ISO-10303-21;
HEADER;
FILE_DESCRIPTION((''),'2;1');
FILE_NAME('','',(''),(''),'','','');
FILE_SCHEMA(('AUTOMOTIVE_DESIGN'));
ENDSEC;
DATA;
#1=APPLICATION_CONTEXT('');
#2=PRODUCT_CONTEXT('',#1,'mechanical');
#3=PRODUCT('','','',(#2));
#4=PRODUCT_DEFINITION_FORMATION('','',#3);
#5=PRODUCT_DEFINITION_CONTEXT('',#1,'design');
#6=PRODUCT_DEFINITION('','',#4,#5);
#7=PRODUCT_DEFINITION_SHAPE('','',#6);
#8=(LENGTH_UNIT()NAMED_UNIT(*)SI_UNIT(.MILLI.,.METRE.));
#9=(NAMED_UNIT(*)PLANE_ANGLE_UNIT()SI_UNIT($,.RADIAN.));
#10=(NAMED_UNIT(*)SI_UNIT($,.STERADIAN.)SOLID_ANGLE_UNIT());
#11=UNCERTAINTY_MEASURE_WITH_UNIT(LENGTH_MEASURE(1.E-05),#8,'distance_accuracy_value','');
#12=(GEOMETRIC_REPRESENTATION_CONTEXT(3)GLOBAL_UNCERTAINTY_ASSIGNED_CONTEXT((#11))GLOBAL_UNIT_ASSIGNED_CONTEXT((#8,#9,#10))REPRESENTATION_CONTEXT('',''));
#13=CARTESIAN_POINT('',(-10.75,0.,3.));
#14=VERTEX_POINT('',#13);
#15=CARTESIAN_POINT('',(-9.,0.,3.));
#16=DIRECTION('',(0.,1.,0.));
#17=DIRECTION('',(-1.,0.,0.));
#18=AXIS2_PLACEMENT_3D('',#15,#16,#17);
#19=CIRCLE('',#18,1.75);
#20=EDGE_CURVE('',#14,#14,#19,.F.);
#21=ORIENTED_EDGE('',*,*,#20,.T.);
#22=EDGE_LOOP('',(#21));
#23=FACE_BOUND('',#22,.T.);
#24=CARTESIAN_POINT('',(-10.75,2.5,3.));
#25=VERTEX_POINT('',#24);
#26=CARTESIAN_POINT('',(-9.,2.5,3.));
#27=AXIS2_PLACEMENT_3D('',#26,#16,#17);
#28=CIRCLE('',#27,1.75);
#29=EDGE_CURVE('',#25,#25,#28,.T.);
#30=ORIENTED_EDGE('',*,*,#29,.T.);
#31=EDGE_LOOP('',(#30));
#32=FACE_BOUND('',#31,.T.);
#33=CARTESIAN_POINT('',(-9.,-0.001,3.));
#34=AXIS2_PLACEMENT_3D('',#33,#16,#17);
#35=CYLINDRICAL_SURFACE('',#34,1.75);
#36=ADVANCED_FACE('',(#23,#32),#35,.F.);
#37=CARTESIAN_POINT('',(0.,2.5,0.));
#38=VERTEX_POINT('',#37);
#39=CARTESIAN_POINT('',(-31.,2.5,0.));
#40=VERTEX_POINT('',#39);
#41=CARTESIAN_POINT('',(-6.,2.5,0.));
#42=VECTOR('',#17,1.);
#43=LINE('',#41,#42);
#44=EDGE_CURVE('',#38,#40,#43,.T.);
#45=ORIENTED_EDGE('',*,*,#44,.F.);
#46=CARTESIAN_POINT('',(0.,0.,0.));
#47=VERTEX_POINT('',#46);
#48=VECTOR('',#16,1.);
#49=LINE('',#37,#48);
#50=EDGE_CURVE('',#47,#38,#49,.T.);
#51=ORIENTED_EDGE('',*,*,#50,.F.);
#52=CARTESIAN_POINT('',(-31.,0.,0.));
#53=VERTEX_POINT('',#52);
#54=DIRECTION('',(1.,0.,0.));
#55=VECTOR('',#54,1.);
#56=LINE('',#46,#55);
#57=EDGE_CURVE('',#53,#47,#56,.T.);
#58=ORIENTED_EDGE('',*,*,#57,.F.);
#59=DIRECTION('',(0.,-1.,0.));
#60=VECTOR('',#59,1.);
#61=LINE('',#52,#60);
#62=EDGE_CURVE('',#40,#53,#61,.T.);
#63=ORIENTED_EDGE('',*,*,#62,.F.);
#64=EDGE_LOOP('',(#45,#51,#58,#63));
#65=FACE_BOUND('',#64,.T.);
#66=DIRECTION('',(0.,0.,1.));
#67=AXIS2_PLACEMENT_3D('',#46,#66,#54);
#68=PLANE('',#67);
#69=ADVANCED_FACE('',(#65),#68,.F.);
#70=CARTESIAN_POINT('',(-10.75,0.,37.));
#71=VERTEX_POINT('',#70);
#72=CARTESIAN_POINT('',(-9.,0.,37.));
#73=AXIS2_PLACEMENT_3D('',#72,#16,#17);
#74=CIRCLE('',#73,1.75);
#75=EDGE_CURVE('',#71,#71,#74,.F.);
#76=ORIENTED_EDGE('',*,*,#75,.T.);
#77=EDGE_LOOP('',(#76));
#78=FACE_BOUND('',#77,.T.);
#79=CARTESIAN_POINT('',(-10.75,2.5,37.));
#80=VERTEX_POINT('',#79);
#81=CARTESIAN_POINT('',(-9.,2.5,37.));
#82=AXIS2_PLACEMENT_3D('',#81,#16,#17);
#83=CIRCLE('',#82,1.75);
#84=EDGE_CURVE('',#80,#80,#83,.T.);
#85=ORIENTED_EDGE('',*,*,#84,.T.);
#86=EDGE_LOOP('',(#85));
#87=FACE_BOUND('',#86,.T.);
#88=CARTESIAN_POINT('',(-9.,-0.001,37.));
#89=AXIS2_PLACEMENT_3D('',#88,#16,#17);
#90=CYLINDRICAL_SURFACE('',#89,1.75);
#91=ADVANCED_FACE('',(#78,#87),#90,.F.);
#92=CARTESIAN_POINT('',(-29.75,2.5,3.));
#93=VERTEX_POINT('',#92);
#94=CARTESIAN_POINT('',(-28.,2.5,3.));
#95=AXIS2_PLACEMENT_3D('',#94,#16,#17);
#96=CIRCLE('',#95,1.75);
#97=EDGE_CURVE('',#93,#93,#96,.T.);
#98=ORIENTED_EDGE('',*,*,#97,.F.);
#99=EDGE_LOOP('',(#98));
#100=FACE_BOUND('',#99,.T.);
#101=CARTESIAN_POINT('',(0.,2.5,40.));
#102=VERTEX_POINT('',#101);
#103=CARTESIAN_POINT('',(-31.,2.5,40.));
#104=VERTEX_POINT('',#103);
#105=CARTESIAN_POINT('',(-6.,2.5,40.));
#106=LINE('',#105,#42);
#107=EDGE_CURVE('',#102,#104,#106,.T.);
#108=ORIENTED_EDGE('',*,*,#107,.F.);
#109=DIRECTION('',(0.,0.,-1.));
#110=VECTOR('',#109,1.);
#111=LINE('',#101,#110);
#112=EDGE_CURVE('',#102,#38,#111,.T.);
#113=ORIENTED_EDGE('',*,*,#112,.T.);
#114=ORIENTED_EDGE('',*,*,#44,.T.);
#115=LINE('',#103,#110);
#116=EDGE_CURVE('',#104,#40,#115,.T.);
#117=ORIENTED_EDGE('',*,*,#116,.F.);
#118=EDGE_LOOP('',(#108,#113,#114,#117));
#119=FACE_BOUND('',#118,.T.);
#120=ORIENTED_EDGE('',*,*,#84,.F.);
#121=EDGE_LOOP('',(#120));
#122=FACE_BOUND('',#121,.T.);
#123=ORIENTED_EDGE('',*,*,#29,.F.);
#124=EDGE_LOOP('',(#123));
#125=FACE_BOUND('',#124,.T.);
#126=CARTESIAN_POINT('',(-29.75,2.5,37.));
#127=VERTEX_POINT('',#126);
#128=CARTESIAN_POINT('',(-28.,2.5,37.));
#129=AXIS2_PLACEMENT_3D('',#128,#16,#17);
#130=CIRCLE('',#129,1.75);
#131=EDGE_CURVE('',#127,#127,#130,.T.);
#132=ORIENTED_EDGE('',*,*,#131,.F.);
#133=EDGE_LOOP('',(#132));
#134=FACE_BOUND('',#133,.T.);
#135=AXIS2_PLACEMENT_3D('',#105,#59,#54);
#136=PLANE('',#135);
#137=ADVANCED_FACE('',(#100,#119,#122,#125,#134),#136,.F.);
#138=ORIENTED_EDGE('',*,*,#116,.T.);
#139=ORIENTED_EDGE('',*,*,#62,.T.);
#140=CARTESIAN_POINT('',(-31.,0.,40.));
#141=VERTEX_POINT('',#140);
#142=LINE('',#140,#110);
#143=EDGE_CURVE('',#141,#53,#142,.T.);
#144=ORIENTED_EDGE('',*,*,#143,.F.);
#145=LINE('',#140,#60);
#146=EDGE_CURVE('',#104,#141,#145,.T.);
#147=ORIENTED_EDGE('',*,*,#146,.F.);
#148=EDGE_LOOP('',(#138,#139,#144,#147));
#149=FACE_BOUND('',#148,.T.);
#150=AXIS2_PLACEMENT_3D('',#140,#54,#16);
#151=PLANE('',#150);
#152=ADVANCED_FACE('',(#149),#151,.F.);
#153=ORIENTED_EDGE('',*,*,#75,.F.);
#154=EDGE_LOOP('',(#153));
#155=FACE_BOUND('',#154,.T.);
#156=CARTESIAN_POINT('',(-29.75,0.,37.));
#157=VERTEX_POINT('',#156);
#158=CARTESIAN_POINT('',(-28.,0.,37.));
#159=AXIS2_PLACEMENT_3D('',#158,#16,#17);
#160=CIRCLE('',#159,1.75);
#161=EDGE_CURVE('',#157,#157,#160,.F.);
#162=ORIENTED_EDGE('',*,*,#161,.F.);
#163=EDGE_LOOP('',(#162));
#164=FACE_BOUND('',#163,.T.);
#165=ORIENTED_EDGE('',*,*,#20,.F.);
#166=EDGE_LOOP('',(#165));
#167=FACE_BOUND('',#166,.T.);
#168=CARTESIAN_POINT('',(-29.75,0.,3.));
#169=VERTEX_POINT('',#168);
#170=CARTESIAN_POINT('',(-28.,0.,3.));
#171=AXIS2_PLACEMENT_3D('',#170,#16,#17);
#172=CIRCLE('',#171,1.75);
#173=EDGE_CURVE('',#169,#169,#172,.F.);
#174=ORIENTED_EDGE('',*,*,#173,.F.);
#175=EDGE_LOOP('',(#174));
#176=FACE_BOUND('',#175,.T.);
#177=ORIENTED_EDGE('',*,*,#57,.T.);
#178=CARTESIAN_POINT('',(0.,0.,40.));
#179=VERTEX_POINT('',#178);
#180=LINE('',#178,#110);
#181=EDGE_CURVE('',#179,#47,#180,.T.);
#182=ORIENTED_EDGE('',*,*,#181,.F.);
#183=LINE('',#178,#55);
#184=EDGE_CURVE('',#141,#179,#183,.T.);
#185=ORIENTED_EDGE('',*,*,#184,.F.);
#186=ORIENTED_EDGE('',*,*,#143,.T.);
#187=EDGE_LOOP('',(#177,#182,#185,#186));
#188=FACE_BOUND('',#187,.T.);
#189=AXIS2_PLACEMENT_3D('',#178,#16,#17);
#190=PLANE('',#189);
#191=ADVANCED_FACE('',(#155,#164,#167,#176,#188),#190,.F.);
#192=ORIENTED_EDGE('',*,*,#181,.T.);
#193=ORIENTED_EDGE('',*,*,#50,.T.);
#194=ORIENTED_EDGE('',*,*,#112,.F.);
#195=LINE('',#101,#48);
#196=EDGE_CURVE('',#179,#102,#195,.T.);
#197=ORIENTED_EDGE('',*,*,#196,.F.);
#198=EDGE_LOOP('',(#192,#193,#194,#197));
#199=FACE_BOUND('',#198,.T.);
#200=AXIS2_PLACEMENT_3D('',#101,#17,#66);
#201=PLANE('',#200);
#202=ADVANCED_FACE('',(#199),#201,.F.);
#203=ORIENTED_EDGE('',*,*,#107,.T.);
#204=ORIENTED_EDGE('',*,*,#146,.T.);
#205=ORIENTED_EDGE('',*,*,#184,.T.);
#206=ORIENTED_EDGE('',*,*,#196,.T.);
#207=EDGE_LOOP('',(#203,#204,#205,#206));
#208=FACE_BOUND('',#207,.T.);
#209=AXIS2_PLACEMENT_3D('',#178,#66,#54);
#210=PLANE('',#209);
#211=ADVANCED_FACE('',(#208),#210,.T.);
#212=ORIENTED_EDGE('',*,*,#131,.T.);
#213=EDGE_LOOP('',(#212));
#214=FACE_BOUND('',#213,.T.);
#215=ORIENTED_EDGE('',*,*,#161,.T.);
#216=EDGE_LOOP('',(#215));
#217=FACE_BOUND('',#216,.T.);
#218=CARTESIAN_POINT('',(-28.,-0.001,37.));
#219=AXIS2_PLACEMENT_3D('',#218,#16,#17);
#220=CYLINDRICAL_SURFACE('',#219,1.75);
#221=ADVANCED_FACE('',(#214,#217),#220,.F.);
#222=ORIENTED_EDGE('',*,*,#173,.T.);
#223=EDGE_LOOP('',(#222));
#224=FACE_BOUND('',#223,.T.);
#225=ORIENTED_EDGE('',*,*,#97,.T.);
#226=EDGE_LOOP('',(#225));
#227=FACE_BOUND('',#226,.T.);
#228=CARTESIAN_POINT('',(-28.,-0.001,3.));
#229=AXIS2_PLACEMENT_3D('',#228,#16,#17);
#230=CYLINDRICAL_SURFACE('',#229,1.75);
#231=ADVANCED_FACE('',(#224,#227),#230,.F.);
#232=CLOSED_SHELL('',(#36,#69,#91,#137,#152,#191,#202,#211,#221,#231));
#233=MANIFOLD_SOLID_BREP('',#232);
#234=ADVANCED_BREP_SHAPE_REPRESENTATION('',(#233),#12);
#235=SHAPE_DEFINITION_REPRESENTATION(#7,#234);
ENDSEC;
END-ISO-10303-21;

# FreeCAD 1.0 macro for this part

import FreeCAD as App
import Part
import Sketcher

V = App.Vector

doc = App.newDocument("Part")
body = doc.addObject("PartDesign::Body", "Body")

sketch1 = doc.addObject("Sketcher::SketchObject", "Sketch")
body.addObject(sketch1)
sketch1.AttachmentSupport = (doc.XY_Plane, [""])
sketch1.MapMode = "FlatFace"
sketch1.addGeometry([
    Part.LineSegment(V(-31, 0, 0), V(0, 0, 0)),
    Part.LineSegment(V(0, 0, 0), V(0, 2.5, 0)),
    Part.LineSegment(V(0, 2.5, 0), V(-31, 2.5, 0)),
    Part.LineSegment(V(-31, 2.5, 0), V(-31, 0, 0)),
], False)
sketch1.addConstraint([
    Sketcher.Constraint("Coincident", 0, 2, 1, 1),
    Sketcher.Constraint("Coincident", 1, 2, 2, 1),
    Sketcher.Constraint("Coincident", 2, 2, 3, 1),
    Sketcher.Constraint("Coincident", 3, 2, 0, 1),
    Sketcher.Constraint("Horizontal", 0),
    Sketcher.Constraint("Vertical", 1),
    Sketcher.Constraint("Horizontal", 2),
    Sketcher.Constraint("Vertical", 3),
    Sketcher.Constraint("Coincident", 0, 2, -1, 1),
    Sketcher.Constraint("DistanceX", 0, 1, 0, 2, 31.0),
    Sketcher.Constraint("DistanceY", 1, 1, 1, 2, 2.5),
])
pad1 = doc.addObject("PartDesign::Pad", "Pad")
body.addObject(pad1)
pad1.Profile = sketch1
pad1.Length = 40

sketch2 = doc.addObject("Sketcher::SketchObject", "Sketch001")
body.addObject(sketch2)
sketch2.AttachmentSupport = (doc.XZ_Plane, [""])
sketch2.MapMode = "FlatFace"
sketch2.AttachmentOffset = App.Placement(V(0, 0, -2.5), App.Rotation())
sketch2.addGeometry(Part.Circle(V(-9, 3, 0), V(0, 0, 1), 1.8), False)
sketch2.addConstraint([
    Sketcher.Constraint("Diameter", 0, 3.5),
    Sketcher.Constraint("DistanceX", 0, 3, -1, 1, 9.0),
    Sketcher.Constraint("DistanceY", -1, 1, 0, 3, 3.0),
])
pocket1 = doc.addObject("PartDesign::Pocket", "Pocket")
body.addObject(pocket1)
pocket1.Profile = sketch2
pocket1.Type = "UpToFirst"
pocket1.Reversed = True

sketch3 = doc.addObject("Sketcher::SketchObject", "Sketch002")
body.addObject(sketch3)
sketch3.AttachmentSupport = (doc.XZ_Plane, [""])
sketch3.MapMode = "FlatFace"
sketch3.AttachmentOffset = App.Placement(V(0, 0, -2.5), App.Rotation())
sketch3.addGeometry(Part.Circle(V(-28, 3, 0), V(0, 0, 1), 1.8), False)
sketch3.addConstraint([
    Sketcher.Constraint("Diameter", 0, 3.5),
    Sketcher.Constraint("DistanceX", 0, 3, -1, 1, 28.0),
    Sketcher.Constraint("DistanceY", -1, 1, 0, 3, 3.0),
])
pocket2 = doc.addObject("PartDesign::Pocket", "Pocket001")
body.addObject(pocket2)
pocket2.Profile = sketch3
pocket2.Type = "UpToFirst"
pocket2.Reversed = True

sketch4 = doc.addObject("Sketcher::SketchObject", "Sketch003")
body.addObject(sketch4)
sketch4.AttachmentSupport = (doc.XZ_Plane, [""])
sketch4.MapMode = "FlatFace"
sketch4.AttachmentOffset = App.Placement(V(0, 0, -2.5), App.Rotation())
sketch4.addGeometry(Part.Circle(V(-28, 37, 0), V(0, 0, 1), 1.8), False)
sketch4.addConstraint([
    Sketcher.Constraint("Diameter", 0, 3.5),
    Sketcher.Constraint("DistanceX", 0, 3, -1, 1, 28.0),
    Sketcher.Constraint("DistanceY", -1, 1, 0, 3, 37.0),
])
pocket3 = doc.addObject("PartDesign::Pocket", "Pocket002")
body.addObject(pocket3)
pocket3.Profile = sketch4
pocket3.Type = "UpToFirst"
pocket3.Reversed = True

sketch5 = doc.addObject("Sketcher::SketchObject", "Sketch004")
body.addObject(sketch5)
sketch5.AttachmentSupport = (doc.XZ_Plane, [""])
sketch5.MapMode = "FlatFace"
sketch5.AttachmentOffset = App.Placement(V(0, 0, -2.5), App.Rotation())
sketch5.addGeometry(Part.Circle(V(-9, 37, 0), V(0, 0, 1), 1.8), False)
sketch5.addConstraint([
    Sketcher.Constraint("Diameter", 0, 3.5),
    Sketcher.Constraint("DistanceX", 0, 3, -1, 1, 9.0),
    Sketcher.Constraint("DistanceY", -1, 1, 0, 3, 37.0),
])
pocket4 = doc.addObject("PartDesign::Pocket", "Pocket003")
body.addObject(pocket4)
pocket4.Profile = sketch5
pocket4.Type = "UpToFirst"
pocket4.Reversed = True

doc.recompute()
